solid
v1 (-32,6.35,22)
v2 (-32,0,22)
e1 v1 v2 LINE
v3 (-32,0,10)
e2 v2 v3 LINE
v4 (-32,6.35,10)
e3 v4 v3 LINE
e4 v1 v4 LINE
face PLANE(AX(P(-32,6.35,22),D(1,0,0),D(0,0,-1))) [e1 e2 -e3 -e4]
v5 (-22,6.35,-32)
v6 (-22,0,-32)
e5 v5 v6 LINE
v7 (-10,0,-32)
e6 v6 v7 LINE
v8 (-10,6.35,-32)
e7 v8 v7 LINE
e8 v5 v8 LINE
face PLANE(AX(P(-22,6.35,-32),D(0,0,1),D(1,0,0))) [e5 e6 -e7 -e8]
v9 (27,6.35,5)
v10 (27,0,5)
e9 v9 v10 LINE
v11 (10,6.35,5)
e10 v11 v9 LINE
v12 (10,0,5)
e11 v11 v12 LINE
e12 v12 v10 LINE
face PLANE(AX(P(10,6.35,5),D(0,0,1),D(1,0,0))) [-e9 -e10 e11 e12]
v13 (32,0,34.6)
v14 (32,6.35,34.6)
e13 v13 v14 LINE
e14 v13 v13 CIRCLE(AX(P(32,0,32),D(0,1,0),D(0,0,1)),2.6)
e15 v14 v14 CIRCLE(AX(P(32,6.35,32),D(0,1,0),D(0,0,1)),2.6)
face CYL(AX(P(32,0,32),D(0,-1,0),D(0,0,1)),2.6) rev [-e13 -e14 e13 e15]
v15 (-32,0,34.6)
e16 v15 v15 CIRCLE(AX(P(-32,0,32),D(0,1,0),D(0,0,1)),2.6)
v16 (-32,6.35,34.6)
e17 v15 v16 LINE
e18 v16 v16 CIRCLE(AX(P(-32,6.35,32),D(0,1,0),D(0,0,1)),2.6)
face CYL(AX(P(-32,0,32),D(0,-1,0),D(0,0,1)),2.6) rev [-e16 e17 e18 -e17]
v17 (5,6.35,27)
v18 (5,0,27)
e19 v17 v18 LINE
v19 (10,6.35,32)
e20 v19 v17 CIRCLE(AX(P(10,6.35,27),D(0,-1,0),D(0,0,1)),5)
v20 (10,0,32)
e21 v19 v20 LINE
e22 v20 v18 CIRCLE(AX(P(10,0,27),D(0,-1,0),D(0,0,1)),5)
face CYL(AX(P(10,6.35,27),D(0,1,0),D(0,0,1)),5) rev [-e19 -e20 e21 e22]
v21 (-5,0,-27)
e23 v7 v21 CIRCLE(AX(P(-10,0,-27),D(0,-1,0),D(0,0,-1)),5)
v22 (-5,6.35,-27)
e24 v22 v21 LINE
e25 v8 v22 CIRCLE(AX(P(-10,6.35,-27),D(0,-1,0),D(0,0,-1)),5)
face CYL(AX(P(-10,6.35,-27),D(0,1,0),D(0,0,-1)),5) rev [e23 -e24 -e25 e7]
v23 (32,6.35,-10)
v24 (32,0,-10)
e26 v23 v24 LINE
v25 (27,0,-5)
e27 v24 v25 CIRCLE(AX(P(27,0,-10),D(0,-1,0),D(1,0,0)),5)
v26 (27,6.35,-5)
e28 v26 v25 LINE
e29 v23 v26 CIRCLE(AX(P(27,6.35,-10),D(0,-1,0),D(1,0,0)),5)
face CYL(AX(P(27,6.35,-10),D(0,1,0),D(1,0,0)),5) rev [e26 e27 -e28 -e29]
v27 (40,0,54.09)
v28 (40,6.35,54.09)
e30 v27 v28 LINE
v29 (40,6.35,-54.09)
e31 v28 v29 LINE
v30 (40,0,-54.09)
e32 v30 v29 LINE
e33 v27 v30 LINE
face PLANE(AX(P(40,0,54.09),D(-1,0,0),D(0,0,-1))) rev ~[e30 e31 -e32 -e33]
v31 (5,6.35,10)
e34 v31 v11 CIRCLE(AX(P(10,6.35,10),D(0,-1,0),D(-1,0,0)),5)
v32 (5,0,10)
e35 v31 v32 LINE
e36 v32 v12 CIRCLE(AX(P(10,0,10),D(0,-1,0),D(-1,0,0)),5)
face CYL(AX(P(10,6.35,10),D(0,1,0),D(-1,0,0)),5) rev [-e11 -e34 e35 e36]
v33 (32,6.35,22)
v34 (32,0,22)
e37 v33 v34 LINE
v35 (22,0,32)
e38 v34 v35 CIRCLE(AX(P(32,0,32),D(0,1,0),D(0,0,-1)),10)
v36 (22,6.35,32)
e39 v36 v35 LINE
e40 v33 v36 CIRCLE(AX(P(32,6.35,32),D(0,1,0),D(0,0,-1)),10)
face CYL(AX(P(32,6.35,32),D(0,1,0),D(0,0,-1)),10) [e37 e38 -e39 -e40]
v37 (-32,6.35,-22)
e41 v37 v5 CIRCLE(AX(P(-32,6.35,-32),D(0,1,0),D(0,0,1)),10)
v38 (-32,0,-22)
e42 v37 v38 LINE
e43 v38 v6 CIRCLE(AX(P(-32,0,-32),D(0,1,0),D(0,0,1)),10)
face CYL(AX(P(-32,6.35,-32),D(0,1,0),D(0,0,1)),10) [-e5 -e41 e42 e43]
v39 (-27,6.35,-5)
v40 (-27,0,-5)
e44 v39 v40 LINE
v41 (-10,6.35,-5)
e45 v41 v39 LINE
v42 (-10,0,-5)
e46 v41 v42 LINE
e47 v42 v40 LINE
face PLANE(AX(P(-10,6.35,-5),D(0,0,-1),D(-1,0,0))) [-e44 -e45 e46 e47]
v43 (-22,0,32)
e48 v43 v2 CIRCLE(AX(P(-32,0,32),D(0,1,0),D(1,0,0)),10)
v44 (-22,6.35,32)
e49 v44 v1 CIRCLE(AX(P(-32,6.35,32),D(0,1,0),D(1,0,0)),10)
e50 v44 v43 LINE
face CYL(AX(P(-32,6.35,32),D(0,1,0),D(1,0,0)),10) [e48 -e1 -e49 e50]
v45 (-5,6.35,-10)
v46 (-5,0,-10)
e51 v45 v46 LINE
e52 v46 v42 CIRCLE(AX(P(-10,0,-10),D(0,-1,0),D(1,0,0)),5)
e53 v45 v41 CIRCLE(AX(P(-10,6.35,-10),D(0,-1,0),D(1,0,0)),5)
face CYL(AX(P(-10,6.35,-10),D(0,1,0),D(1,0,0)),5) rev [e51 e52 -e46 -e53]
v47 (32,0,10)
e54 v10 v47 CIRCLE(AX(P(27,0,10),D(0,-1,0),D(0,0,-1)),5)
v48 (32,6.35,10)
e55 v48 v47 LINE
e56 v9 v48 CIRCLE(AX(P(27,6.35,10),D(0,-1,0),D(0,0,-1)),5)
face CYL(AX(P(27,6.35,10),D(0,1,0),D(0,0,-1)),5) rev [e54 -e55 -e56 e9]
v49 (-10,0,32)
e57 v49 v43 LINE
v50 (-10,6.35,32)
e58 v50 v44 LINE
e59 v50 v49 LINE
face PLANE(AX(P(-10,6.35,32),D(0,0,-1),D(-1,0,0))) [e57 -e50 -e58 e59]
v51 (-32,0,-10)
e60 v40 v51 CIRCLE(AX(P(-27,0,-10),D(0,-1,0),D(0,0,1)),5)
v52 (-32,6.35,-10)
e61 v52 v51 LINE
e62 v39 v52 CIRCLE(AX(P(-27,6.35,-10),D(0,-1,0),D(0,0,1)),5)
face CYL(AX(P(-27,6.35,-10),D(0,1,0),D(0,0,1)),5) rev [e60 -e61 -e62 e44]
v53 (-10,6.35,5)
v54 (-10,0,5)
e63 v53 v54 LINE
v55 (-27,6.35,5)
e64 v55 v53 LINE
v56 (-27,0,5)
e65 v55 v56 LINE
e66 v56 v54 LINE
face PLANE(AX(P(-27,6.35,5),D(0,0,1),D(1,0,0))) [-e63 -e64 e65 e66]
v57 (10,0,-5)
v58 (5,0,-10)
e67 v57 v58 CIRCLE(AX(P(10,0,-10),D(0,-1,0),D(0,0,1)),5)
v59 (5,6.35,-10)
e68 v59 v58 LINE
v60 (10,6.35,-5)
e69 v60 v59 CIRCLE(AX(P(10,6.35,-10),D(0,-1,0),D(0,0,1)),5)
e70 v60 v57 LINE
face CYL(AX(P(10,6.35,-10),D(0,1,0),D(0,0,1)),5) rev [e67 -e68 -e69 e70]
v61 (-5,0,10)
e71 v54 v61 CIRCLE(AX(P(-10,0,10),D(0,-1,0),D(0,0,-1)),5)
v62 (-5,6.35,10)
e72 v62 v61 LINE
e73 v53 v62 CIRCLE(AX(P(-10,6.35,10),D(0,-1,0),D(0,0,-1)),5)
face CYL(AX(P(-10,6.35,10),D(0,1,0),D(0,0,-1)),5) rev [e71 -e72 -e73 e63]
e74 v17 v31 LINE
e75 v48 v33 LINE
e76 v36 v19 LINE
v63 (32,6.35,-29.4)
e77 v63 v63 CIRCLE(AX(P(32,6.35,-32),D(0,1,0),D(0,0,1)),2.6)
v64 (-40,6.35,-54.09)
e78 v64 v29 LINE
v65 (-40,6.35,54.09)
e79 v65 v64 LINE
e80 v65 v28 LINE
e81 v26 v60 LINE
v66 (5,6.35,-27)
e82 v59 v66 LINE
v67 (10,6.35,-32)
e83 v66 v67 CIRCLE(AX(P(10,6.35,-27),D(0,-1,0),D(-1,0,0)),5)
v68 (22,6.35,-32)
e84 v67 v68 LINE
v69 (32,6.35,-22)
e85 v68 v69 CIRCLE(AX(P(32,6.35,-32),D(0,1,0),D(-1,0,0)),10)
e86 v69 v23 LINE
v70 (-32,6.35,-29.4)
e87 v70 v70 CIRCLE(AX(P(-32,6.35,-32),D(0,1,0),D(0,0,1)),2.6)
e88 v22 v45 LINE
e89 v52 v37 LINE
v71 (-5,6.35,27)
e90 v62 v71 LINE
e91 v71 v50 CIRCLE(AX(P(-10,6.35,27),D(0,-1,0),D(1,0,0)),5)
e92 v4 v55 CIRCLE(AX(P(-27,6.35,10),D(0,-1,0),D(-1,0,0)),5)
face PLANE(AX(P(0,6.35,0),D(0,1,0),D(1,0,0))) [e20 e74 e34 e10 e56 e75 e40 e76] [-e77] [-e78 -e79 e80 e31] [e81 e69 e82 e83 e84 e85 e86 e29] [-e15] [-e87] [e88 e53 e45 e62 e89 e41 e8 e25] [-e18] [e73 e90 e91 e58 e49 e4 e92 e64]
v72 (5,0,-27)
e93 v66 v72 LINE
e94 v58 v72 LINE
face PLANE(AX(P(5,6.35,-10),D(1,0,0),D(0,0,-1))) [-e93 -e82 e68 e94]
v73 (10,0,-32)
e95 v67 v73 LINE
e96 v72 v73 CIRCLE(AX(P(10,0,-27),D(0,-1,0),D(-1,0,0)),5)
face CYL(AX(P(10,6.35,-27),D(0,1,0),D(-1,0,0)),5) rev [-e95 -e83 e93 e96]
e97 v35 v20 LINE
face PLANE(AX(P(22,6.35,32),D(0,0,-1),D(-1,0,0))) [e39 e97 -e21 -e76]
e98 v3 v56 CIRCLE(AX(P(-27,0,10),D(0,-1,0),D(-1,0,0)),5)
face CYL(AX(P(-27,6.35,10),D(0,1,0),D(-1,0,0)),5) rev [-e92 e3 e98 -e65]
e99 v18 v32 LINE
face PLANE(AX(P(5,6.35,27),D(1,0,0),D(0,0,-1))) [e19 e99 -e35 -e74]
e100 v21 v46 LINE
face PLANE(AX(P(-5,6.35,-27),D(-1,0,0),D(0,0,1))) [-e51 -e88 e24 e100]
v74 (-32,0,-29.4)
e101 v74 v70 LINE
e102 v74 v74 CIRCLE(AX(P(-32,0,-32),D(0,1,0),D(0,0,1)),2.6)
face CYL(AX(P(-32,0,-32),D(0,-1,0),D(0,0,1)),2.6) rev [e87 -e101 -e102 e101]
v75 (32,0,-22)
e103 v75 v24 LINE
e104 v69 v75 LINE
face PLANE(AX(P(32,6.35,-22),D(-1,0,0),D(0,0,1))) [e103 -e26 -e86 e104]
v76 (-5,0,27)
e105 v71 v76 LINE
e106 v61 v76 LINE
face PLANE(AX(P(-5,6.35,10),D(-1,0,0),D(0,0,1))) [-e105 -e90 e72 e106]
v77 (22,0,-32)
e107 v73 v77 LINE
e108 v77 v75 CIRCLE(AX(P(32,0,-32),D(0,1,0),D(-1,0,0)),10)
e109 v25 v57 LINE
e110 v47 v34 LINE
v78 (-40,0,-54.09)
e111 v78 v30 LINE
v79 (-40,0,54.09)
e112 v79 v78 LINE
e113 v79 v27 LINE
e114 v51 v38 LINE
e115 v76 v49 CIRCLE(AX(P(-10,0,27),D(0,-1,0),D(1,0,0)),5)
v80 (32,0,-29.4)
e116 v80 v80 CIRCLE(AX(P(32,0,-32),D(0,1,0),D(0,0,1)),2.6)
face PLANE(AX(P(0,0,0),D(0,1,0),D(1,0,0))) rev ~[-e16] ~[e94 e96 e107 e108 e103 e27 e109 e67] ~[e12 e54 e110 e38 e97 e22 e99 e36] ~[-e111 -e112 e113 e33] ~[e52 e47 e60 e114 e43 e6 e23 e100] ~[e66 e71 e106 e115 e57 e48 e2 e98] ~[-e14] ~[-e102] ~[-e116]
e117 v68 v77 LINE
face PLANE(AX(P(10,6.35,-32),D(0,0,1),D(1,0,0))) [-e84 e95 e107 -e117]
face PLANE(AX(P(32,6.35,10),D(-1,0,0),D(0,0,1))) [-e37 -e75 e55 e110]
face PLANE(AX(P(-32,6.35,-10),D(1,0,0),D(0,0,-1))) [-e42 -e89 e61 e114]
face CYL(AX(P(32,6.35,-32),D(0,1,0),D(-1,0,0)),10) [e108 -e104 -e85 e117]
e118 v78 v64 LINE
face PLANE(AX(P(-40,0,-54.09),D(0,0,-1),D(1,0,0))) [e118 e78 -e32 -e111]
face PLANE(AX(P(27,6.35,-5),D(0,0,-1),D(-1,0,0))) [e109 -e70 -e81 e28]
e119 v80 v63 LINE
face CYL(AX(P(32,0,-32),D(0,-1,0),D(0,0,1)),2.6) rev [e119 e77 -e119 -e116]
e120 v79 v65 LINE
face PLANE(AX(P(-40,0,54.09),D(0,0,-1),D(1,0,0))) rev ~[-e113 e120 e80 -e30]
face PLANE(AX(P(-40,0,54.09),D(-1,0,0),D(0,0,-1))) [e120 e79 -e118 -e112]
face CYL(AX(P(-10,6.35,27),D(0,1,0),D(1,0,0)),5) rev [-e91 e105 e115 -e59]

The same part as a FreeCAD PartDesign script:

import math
import FreeCAD as App
import Part
import Sketcher

V = App.Vector


def add_polygon(sketch, points):
    """Adds a closed chain of lines whose ends are joined by coincident constraints."""
    first, n = sketch.GeometryCount, len(points)
    for a, b in zip(points, points[1:] + points[:1]):
        sketch.addGeometry(Part.LineSegment(App.Vector(*a, 0), App.Vector(*b, 0)), False)
    for i in range(n):
        sketch.addConstraint(Sketcher.Constraint("Coincident", first + i, 2, first + (i + 1) % n, 1))

doc = App.newDocument("Part")
body = doc.addObject("PartDesign::Body", "Body")

# Sketch on XZ plane
sketch1 = body.newObject("Sketcher::SketchObject", "Sketch")
sketch1.AttachmentSupport = (doc.getObject("XZ_Plane"), [""])
sketch1.MapMode = "FlatFace"
add_polygon(sketch1, [(-40, -54.1), (-40, 54.1), (40, 54.1), (40, -54.1)])  # lines 0-3
sketch1.addGeometry(Part.Circle(V(-32, 32, 0), V(0, 0, 1), 2.6), False)  # 4
sketch1.addGeometry(Part.Circle(V(32, 32, 0), V(0, 0, 1), 2.6), False)  # 5
sketch1.addGeometry(Part.Circle(V(-32, -32, 0), V(0, 0, 1), 2.6), False)  # 6
sketch1.addGeometry(Part.Circle(V(32, -32, 0), V(0, 0, 1), 2.6), False)  # 7
sketch1.addConstraint([
    Sketcher.Constraint("Vertical", 0),
    Sketcher.Constraint("Horizontal", 1),
    Sketcher.Constraint("Vertical", 2),
    Sketcher.Constraint("Horizontal", 3),
    Sketcher.Constraint("Equal", 4, 5),
    Sketcher.Constraint("Equal", 5, 6),
    Sketcher.Constraint("Equal", 6, 7),
    Sketcher.Constraint("Symmetric", 5, 3, 6, 3, -1, 1),
    Sketcher.Constraint("Symmetric", 4, 3, 7, 3, -1, 1),
    Sketcher.Constraint("Symmetric", 0, 2, 2, 2, -1, 1),
    Sketcher.Constraint("Symmetric", 4, 3, 5, 3, -2),
    Sketcher.Constraint("Diameter", 4, 5.2),
    Sketcher.Constraint("DistanceX", 1, 1, 1, 2, 80.0),
    Sketcher.Constraint("DistanceX", 4, 3, -1, 1, 32.0),
    Sketcher.Constraint("DistanceY", -1, 1, 4, 3, 32.0),
    Sketcher.Constraint("DistanceY", 0, 1, 0, 2, 108.18),
])
pad1 = body.newObject("PartDesign::Pad", "Pad")
pad1.Profile = sketch1
pad1.Length = 6.35
pad1.Reversed = True

# Sketch on XZ plane
sketch2 = body.newObject("Sketcher::SketchObject", "Sketch001")
sketch2.AttachmentSupport = (doc.getObject("XZ_Plane"), [""])
sketch2.MapMode = "FlatFace"
sketch2.AttachmentOffset = App.Placement(V(0, 0, -6.35), App.Rotation())
sketch2.addGeometry([
    Part.LineSegment(V(-10, 5, 0), V(-27, 5, 0)),  # 0
    Part.ArcOfCircle(Part.Circle(V(-27, 10, 0), V(0, 0, 1), 5), math.radians(180), math.radians(270)),  # 1
    Part.LineSegment(V(-32, 10, 0), V(-32, 22, 0)),  # 2
    Part.ArcOfCircle(Part.Circle(V(-32, 32, 0), V(0, 0, 1), 10), math.radians(-90), math.radians(0)),  # 3
    Part.LineSegment(V(-22, 32, 0), V(-10, 32, 0)),  # 4
    Part.ArcOfCircle(Part.Circle(V(-10, 27, 0), V(0, 0, 1), 5), math.radians(0), math.radians(90)),  # 5
    Part.LineSegment(V(-5, 27, 0), V(-5, 10, 0)),  # 6
    Part.ArcOfCircle(Part.Circle(V(-10, 10, 0), V(0, 0, 1), 5), math.radians(-90), math.radians(0)),  # 7
    Part.LineSegment(V(-10, -32, 0), V(-22, -32, 0)),  # 8
    Part.ArcOfCircle(Part.Circle(V(-32, -32, 0), V(0, 0, 1), 10), math.radians(0), math.radians(90)),  # 9
    Part.LineSegment(V(-32, -22, 0), V(-32, -10, 0)),  # 10
    Part.ArcOfCircle(Part.Circle(V(-27, -10, 0), V(0, 0, 1), 5), math.radians(90), math.radians(180)),  # 11
    Part.LineSegment(V(-27, -5, 0), V(-10, -5, 0)),  # 12
    Part.ArcOfCircle(Part.Circle(V(-10, -10, 0), V(0, 0, 1), 5), math.radians(0), math.radians(90)),  # 13
    Part.LineSegment(V(-5, -10, 0), V(-5, -27, 0)),  # 14
    Part.ArcOfCircle(Part.Circle(V(-10, -27, 0), V(0, 0, 1), 5), math.radians(-90), math.radians(0)),  # 15
    Part.LineSegment(V(32, -10, 0), V(32, -22, 0)),  # 16
    Part.ArcOfCircle(Part.Circle(V(32, -32, 0), V(0, 0, 1), 10), math.radians(90), math.radians(180)),  # 17
    Part.LineSegment(V(22, -32, 0), V(10, -32, 0)),  # 18
    Part.ArcOfCircle(Part.Circle(V(10, -27, 0), V(0, 0, 1), 5), math.radians(180), math.radians(270)),  # 19
    Part.LineSegment(V(5, -27, 0), V(5, -10, 0)),  # 20
    Part.ArcOfCircle(Part.Circle(V(10, -10, 0), V(0, 0, 1), 5), math.radians(90), math.radians(180)),  # 21
    Part.LineSegment(V(10, -5, 0), V(27, -5, 0)),  # 22
    Part.ArcOfCircle(Part.Circle(V(27, -10, 0), V(0, 0, 1), 5), math.radians(0), math.radians(90)),  # 23
    Part.LineSegment(V(10, 32, 0), V(22, 32, 0)),  # 24
    Part.ArcOfCircle(Part.Circle(V(32, 32, 0), V(0, 0, 1), 10), math.radians(180), math.radians(270)),  # 25
    Part.LineSegment(V(32, 22, 0), V(32, 10, 0)),  # 26
    Part.ArcOfCircle(Part.Circle(V(27, 10, 0), V(0, 0, 1), 5), math.radians(-90), math.radians(0)),  # 27
    Part.LineSegment(V(27, 5, 0), V(10, 5, 0)),  # 28
    Part.ArcOfCircle(Part.Circle(V(10, 10, 0), V(0, 0, 1), 5), math.radians(180), math.radians(270)),  # 29
    Part.LineSegment(V(5, 10, 0), V(5, 27, 0)),  # 30
    Part.ArcOfCircle(Part.Circle(V(10, 27, 0), V(0, 0, 1), 5), math.radians(90), math.radians(180)),  # 31
], False)
sketch2.addConstraint([
    Sketcher.Constraint("Tangent", 0, 2, 1, 2),
    Sketcher.Constraint("Tangent", 1, 1, 2, 1),
    Sketcher.Constraint("Coincident", 2, 2, 3, 1),
    Sketcher.Constraint("Coincident", 3, 2, 4, 1),
    Sketcher.Constraint("Tangent", 4, 2, 5, 2),
    Sketcher.Constraint("Tangent", 5, 1, 6, 1),
    Sketcher.Constraint("Tangent", 6, 2, 7, 2),
    Sketcher.Constraint("Tangent", 7, 1, 0, 1),
    Sketcher.Constraint("Coincident", 8, 2, 9, 1),
    Sketcher.Constraint("Coincident", 9, 2, 10, 1),
    Sketcher.Constraint("Tangent", 10, 2, 11, 2),
    Sketcher.Constraint("Tangent", 11, 1, 12, 1),
    Sketcher.Constraint("Tangent", 12, 2, 13, 2),
    Sketcher.Constraint("Tangent", 13, 1, 14, 1),
    Sketcher.Constraint("Tangent", 14, 2, 15, 2),
    Sketcher.Constraint("Tangent", 15, 1, 8, 1),
    Sketcher.Constraint("Coincident", 16, 2, 17, 1),
    Sketcher.Constraint("Coincident", 17, 2, 18, 1),
    Sketcher.Constraint("Tangent", 18, 2, 19, 2),
    Sketcher.Constraint("Tangent", 19, 1, 20, 1),
    Sketcher.Constraint("Tangent", 20, 2, 21, 2),
    Sketcher.Constraint("Tangent", 21, 1, 22, 1),
    Sketcher.Constraint("Tangent", 22, 2, 23, 2),
    Sketcher.Constraint("Tangent", 23, 1, 16, 1),
    Sketcher.Constraint("Coincident", 24, 2, 25, 1),
    Sketcher.Constraint("Coincident", 25, 2, 26, 1),
    Sketcher.Constraint("Tangent", 26, 2, 27, 2),
    Sketcher.Constraint("Tangent", 27, 1, 28, 1),
    Sketcher.Constraint("Tangent", 28, 2, 29, 2),
    Sketcher.Constraint("Tangent", 29, 1, 30, 1),
    Sketcher.Constraint("Tangent", 30, 2, 31, 2),
    Sketcher.Constraint("Tangent", 31, 1, 24, 1),
    Sketcher.Constraint("Horizontal", 0),
    Sketcher.Constraint("Vertical", 2),
    Sketcher.Constraint("Horizontal", 4),
    Sketcher.Constraint("Vertical", 6),
    Sketcher.Constraint("Horizontal", 8),
    Sketcher.Constraint("Vertical", 10),
    Sketcher.Constraint("Horizontal", 12),
    Sketcher.Constraint("Vertical", 14),
    Sketcher.Constraint("Vertical", 16),
    Sketcher.Constraint("Horizontal", 18),
    Sketcher.Constraint("Vertical", 20),
    Sketcher.Constraint("Horizontal", 22),
    Sketcher.Constraint("Horizontal", 24),
    Sketcher.Constraint("Vertical", 26),
    Sketcher.Constraint("Horizontal", 28),
    Sketcher.Constraint("Vertical", 30),
    Sketcher.Constraint("Equal", 1, 5),
    Sketcher.Constraint("Equal", 5, 7),
    Sketcher.Constraint("Equal", 3, 9),
    Sketcher.Constraint("Equal", 7, 11),
    Sketcher.Constraint("Equal", 11, 13),
    Sketcher.Constraint("Equal", 13, 15),
    Sketcher.Constraint("Equal", 9, 17),
    Sketcher.Constraint("Equal", 15, 19),
    Sketcher.Constraint("Equal", 19, 21),
    Sketcher.Constraint("Equal", 21, 23),
    Sketcher.Constraint("Equal", 17, 25),
    Sketcher.Constraint("Equal", 23, 27),
    Sketcher.Constraint("Equal", 27, 29),
    Sketcher.Constraint("Equal", 29, 31),
    Sketcher.Constraint("Symmetric", 3, 3, 17, 3, -1, 1),
    Sketcher.Constraint("Symmetric", 5, 3, 19, 3, -1, 1),
    Sketcher.Constraint("Symmetric", 1, 3, 23, 3, -1, 1),
    Sketcher.Constraint("Symmetric", 9, 3, 25, 3, -1, 1),
    Sketcher.Constraint("Symmetric", 11, 3, 27, 3, -1, 1),
    Sketcher.Constraint("Symmetric", 15, 3, 31, 3, -1, 1),
    Sketcher.Constraint("Symmetric", 9, 3, 17, 3, -2),
    Sketcher.Constraint("Symmetric", 15, 3, 19, 3, -2),
    Sketcher.Constraint("Symmetric", 11, 3, 23, 3, -2),
    Sketcher.Constraint("Horizontal", 25, 3, 3, 2),
    Sketcher.Constraint("Vertical", 9, 3, 1, 1),
    Sketcher.Constraint("Equal", 24, 2),
    Sketcher.Constraint("Radius", 1, 5.0),
    Sketcher.Constraint("Radius", 3, 10.0),
    Sketcher.Constraint("DistanceX", 0, 2, 0, 1, 17.0),
    Sketcher.Constraint("DistanceX", 1, 3, -1, 1, 27.0),
    Sketcher.Constraint("DistanceY", -1, 1, 1, 3, 10.0),
])
pocket1 = body.newObject("PartDesign::Pocket", "Pocket")
pocket1.Profile = sketch2
pocket1.Length = 6.35
pocket1.Reversed = True

doc.recompute()
